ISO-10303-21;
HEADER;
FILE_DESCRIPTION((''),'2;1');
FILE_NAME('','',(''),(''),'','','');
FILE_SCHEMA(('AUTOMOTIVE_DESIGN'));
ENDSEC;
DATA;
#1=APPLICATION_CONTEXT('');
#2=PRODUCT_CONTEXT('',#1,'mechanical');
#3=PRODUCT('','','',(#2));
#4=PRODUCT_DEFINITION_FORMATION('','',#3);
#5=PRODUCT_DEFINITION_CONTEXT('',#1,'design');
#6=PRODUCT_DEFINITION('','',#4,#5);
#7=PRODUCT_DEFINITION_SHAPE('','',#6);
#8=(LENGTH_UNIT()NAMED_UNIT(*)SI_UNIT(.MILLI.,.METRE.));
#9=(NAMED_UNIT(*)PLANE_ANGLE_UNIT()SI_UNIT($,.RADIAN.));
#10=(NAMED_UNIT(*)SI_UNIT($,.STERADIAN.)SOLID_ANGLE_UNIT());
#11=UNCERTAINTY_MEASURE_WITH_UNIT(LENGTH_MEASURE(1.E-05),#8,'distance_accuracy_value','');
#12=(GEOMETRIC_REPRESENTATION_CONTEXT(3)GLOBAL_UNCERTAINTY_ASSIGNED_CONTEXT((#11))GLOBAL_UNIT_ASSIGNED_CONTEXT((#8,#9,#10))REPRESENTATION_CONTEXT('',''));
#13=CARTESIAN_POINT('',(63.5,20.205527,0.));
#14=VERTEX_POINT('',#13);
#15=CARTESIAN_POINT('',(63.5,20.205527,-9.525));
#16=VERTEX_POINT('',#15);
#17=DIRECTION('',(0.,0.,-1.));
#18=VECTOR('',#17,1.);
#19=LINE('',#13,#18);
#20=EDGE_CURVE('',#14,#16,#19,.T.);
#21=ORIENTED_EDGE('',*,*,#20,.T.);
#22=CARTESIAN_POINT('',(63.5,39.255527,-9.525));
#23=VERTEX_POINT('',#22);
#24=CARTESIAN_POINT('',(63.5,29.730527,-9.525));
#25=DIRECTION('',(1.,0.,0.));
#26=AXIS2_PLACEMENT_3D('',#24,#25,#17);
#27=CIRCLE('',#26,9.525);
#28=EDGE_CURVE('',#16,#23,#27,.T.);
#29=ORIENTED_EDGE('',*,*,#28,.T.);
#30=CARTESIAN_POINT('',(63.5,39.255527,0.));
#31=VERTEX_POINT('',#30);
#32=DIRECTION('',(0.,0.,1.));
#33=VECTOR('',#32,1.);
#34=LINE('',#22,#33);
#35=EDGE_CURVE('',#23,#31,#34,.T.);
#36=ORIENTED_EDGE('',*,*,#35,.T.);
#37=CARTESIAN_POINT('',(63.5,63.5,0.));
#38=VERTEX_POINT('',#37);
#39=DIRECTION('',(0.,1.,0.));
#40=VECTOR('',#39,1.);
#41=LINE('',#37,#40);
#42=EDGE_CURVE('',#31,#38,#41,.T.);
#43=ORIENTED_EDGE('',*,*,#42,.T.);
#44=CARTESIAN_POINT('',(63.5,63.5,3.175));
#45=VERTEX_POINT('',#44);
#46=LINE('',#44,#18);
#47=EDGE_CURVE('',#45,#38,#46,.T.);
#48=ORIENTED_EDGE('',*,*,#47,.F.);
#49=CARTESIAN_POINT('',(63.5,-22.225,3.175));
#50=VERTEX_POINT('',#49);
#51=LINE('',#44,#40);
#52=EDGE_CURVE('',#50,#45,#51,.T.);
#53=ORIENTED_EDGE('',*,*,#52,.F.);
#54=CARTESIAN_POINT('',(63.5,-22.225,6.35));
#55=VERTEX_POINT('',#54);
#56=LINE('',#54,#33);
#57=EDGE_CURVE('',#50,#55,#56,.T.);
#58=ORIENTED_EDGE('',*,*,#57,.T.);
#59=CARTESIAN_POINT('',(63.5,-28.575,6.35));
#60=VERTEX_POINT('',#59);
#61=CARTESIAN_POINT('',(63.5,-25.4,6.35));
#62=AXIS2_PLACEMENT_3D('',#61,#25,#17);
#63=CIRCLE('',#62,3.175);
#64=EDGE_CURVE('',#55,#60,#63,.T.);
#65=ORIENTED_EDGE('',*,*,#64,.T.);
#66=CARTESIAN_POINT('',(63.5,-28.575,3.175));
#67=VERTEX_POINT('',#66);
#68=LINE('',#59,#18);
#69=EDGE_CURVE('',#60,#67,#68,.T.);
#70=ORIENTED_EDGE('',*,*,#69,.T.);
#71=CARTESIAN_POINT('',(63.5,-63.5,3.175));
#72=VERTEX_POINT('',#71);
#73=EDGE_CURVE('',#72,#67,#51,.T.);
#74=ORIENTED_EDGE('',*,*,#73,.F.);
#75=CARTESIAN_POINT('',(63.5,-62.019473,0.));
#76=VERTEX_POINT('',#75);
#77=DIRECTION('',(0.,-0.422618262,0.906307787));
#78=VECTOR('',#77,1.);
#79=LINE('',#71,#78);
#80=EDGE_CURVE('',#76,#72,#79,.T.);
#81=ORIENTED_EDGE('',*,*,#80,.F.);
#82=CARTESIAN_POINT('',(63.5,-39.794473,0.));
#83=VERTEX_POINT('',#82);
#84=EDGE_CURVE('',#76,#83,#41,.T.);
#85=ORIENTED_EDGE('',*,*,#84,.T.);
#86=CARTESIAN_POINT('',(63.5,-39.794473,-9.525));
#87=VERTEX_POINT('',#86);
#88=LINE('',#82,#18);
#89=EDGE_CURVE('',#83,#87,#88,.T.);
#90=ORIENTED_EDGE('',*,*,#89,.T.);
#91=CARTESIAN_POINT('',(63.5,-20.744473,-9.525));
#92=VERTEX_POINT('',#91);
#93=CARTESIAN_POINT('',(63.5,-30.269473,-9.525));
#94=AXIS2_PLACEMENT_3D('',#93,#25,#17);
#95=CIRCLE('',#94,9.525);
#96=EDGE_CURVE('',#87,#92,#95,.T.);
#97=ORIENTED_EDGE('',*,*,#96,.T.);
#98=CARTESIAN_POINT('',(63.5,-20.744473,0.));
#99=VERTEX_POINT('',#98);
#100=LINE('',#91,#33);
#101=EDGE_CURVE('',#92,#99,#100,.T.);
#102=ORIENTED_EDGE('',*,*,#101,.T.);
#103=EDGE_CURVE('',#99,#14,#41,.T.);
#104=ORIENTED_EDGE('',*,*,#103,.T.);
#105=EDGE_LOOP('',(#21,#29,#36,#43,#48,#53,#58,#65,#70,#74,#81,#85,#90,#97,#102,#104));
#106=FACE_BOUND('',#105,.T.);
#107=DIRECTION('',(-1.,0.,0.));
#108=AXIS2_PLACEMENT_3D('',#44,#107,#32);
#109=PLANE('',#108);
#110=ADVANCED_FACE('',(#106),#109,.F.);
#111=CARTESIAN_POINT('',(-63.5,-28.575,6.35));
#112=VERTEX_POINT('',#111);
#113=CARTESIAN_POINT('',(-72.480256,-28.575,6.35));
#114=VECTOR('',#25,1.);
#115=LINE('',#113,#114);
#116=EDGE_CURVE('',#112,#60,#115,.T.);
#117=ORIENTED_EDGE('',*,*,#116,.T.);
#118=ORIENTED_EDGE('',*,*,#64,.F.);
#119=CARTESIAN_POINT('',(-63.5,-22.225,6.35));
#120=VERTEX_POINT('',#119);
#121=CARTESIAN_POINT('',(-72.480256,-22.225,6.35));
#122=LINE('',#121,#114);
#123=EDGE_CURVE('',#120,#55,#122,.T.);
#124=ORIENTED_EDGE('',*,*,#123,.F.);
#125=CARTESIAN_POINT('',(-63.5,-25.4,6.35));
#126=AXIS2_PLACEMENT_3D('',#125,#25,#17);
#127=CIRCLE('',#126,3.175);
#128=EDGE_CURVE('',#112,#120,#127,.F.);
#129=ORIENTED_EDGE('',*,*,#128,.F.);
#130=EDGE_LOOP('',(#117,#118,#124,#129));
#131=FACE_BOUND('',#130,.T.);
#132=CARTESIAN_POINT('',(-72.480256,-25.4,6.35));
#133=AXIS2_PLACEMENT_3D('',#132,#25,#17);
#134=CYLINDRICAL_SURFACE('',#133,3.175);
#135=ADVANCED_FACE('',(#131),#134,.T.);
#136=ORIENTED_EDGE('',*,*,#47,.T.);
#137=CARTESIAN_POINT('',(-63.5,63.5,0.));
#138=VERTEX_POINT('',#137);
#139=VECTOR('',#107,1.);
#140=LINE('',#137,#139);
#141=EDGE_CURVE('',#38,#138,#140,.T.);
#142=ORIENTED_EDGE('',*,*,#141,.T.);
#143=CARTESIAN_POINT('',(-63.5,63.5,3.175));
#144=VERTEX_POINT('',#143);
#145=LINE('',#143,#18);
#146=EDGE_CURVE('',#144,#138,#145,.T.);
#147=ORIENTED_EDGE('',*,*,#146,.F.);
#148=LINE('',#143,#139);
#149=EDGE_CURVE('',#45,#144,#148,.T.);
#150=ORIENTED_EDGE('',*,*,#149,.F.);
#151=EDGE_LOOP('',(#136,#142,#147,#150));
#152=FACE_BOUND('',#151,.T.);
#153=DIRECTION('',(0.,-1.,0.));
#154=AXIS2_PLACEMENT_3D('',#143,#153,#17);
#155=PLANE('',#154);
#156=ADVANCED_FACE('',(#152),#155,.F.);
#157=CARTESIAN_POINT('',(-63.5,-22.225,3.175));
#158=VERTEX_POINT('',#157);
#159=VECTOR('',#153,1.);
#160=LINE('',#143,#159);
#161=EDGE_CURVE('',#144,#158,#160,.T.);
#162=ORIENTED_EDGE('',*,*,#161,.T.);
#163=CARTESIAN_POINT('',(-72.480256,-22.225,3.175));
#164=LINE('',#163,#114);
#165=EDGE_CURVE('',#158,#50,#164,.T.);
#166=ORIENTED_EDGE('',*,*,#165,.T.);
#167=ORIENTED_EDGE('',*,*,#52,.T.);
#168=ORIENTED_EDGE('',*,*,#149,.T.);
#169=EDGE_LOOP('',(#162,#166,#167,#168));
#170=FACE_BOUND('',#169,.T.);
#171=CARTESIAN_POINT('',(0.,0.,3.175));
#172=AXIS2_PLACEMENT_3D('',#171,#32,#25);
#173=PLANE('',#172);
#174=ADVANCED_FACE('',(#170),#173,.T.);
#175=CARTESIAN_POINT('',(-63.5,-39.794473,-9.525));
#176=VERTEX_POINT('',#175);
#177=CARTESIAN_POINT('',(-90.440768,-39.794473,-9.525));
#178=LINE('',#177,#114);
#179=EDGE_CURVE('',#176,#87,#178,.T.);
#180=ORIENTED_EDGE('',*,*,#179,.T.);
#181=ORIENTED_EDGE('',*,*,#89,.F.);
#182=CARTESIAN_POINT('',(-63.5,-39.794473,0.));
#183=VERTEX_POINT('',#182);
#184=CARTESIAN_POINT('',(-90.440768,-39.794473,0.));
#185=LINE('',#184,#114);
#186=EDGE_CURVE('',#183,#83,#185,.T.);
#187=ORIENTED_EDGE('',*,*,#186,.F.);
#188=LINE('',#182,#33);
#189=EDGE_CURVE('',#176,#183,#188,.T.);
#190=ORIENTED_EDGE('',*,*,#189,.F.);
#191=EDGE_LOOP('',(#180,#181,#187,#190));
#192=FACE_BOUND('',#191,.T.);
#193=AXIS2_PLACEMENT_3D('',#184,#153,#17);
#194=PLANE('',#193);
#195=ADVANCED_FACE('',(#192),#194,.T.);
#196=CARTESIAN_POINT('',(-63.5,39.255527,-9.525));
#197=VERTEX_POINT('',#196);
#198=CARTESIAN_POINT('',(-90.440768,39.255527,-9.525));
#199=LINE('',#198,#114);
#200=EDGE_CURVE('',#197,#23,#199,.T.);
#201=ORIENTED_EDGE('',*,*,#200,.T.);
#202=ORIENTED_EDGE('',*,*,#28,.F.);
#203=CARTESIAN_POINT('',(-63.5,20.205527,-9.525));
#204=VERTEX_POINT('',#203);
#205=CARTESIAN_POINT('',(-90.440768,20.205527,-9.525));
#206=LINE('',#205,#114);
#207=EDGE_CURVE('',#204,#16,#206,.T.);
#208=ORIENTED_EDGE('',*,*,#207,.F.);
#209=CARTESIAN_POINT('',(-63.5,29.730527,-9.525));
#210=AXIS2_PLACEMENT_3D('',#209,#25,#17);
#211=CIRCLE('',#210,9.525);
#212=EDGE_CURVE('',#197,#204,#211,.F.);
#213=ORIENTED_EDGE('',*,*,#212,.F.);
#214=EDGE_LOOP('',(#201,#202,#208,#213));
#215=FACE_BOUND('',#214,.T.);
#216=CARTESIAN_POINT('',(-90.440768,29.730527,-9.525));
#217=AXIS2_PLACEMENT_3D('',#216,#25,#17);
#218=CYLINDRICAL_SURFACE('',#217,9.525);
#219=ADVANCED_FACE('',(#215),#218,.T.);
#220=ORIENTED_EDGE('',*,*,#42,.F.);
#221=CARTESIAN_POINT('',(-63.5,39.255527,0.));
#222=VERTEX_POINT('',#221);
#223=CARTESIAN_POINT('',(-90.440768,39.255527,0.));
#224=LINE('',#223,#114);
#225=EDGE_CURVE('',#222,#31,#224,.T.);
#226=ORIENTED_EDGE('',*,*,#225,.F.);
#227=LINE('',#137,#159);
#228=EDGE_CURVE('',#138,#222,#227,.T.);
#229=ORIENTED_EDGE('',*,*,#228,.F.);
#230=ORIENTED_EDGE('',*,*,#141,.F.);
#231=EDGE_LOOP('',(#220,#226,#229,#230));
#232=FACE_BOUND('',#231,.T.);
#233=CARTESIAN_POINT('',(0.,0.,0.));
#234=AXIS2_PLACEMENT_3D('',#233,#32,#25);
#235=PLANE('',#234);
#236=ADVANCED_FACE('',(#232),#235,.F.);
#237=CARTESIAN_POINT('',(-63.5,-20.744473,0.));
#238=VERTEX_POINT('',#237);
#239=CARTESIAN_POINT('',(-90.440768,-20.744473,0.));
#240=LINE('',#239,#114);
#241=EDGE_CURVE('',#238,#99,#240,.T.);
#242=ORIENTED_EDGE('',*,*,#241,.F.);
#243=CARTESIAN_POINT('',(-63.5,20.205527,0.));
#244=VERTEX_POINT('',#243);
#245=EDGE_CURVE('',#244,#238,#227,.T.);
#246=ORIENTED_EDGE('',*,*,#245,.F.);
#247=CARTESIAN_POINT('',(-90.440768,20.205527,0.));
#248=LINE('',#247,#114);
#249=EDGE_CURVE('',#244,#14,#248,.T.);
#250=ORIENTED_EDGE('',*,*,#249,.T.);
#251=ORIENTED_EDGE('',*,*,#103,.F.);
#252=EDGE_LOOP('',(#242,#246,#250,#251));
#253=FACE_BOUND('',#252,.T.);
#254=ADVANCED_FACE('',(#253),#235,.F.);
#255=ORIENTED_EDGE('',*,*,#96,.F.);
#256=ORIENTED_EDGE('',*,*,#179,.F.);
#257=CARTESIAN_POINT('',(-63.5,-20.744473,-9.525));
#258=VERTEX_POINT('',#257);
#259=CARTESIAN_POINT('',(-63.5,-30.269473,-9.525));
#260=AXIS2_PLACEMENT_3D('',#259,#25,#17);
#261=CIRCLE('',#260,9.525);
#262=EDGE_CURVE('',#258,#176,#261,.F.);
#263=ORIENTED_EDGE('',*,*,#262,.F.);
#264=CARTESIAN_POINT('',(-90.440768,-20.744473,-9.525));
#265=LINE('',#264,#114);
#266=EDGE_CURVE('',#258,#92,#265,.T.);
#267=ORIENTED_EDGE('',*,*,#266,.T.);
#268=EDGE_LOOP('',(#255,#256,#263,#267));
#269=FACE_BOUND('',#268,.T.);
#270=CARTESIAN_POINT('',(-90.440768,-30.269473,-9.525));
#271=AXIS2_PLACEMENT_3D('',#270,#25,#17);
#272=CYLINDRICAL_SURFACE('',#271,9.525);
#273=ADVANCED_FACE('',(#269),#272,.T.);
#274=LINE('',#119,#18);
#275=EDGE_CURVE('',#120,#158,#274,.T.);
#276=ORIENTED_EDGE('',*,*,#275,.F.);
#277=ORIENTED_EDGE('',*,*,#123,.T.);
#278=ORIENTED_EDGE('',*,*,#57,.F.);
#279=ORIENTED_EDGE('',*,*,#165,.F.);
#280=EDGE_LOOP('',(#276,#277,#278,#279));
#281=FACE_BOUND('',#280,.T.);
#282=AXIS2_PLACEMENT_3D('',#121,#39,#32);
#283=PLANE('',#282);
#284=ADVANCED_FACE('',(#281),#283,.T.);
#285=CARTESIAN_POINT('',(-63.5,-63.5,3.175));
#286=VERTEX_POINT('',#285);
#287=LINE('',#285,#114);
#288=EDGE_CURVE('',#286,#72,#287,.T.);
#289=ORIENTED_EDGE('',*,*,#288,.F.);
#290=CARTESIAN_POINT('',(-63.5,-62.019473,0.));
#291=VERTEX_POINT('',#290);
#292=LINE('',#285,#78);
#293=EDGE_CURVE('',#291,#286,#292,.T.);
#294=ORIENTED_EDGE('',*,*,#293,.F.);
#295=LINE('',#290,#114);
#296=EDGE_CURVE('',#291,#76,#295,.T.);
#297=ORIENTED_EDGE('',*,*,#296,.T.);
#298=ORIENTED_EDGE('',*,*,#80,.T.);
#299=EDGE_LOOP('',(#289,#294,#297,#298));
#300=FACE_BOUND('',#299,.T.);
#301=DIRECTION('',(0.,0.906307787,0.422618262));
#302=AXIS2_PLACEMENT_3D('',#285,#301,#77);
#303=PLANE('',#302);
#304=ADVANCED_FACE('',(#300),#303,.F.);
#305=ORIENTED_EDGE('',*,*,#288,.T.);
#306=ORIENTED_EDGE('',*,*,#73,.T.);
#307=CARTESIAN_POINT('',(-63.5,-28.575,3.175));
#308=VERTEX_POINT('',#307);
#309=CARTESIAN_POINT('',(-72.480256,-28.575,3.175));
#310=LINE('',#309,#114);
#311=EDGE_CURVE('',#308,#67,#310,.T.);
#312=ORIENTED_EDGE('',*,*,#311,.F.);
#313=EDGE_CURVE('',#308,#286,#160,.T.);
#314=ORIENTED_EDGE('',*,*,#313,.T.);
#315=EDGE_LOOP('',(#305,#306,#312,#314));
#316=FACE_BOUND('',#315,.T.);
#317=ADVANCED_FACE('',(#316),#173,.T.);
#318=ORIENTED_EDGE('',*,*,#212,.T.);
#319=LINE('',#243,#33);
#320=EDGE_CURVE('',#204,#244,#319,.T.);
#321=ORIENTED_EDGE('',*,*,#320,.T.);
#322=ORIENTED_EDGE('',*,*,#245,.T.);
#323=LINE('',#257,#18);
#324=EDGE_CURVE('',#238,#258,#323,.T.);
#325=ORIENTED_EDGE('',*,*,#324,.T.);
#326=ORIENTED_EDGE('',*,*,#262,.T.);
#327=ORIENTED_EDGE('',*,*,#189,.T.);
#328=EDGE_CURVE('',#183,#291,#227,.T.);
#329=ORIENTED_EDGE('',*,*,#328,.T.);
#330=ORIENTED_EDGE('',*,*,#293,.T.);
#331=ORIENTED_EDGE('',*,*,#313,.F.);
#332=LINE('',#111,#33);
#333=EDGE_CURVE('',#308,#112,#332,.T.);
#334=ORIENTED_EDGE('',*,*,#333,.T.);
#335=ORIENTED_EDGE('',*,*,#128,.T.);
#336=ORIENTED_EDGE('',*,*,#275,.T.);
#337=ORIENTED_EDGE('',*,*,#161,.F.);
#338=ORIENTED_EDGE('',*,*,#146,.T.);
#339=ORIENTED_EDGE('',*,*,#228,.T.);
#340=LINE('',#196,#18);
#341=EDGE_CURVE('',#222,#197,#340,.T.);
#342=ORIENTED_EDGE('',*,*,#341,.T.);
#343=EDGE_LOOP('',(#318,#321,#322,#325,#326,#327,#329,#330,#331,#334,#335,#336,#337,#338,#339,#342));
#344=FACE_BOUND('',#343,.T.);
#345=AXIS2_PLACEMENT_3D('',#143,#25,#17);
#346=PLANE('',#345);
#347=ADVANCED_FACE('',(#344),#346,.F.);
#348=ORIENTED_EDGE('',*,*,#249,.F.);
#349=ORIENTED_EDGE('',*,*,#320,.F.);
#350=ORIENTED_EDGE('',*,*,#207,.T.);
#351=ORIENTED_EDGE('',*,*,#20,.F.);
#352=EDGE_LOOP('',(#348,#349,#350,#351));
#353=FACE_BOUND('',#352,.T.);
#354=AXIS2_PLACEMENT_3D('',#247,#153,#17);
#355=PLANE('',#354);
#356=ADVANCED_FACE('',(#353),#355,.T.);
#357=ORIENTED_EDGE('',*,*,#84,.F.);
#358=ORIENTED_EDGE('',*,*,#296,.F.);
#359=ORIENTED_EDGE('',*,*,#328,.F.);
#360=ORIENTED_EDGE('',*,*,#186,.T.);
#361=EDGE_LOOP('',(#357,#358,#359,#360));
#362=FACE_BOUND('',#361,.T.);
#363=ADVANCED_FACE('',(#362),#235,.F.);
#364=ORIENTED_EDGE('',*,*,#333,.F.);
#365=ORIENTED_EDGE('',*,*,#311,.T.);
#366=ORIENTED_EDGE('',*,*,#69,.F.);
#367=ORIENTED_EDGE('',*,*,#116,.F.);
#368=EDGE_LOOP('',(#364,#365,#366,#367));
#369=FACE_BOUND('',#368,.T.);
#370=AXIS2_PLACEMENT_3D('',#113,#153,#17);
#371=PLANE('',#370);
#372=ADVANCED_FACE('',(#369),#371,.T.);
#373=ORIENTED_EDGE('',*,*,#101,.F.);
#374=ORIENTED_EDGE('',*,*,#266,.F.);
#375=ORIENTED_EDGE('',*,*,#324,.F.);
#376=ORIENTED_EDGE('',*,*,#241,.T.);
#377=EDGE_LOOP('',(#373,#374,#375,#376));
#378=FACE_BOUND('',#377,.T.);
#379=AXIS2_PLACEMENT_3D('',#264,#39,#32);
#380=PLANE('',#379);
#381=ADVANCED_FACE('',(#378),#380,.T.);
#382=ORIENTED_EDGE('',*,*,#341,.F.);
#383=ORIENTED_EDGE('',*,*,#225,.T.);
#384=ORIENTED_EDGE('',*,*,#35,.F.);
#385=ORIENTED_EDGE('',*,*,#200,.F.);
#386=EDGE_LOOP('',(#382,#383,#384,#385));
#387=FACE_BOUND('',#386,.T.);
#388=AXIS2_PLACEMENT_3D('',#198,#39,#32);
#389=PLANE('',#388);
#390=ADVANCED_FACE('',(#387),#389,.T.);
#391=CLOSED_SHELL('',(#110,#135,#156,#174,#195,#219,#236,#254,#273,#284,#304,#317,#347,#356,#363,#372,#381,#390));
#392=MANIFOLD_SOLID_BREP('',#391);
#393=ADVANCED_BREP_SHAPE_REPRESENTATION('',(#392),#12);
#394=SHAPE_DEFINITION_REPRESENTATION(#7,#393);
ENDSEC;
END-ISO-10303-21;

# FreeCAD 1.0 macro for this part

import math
import FreeCAD as App
import Part
import Sketcher

V = App.Vector
Q = App.Units.Quantity


def add_polygon(sketch, points):
    """Adds a closed chain of lines whose ends are joined by coincident constraints."""
    first, n = sketch.GeometryCount, len(points)
    for a, b in zip(points, points[1:] + points[:1]):
        sketch.addGeometry(Part.LineSegment(App.Vector(*a, 0), App.Vector(*b, 0)), False)
    for i in range(n):
        sketch.addConstraint(Sketcher.Constraint("Coincident", first + i, 2, first + (i + 1) % n, 1))

doc = App.newDocument("Part")
body = doc.addObject("PartDesign::Body", "Body")

sketch1 = body.newObject("Sketcher::SketchObject", "Sketch")
sketch1.AttachmentSupport = (doc.getObject("XY_Plane"), [""])
sketch1.MapMode = "FlatFace"
add_polygon(sketch1, [(-64, 64), (-64, -64), (64, -64), (64, 64)])
sketch1.addConstraint(Sketcher.Constraint("Vertical", 0))
sketch1.addConstraint(Sketcher.Constraint("Horizontal", 1))
sketch1.addConstraint(Sketcher.Constraint("Vertical", 2))
sketch1.addConstraint(Sketcher.Constraint("Horizontal", 3))
sketch1.addConstraint(Sketcher.Constraint("Symmetric", 0, 2, 2, 2, -1, 1))
sketch1.addConstraint(Sketcher.Constraint("Equal", 3, 0))
sketch1.addConstraint(Sketcher.Constraint("DistanceX", 1, 1, 1, 2, Q("5 in")))
pad1 = body.newObject("PartDesign::Pad", "Pad")
pad1.Profile = sketch1
pad1.Length = Q("0.125 in")

sketch2 = body.newObject("Sketcher::SketchObject", "Sketch001")
sketch2.AttachmentSupport = (doc.getObject("YZ_Plane"), [""])
sketch2.MapMode = "FlatFace"
sketch2.AttachmentOffset = App.Placement(V(0, 0, 2.5 * 25.4), App.Rotation())
add_polygon(sketch2, [(-62, 0), (-63.5, 3.2), (-63.5, 0)])
sketch2.addConstraint(Sketcher.Constraint("Vertical", 1))
sketch2.addConstraint(Sketcher.Constraint("Horizontal", 2))
sketch2.addConstraint(Sketcher.Constraint("PointOnObject", 1, 2, -1))
sketch2.addConstraint(Sketcher.Constraint("Angle", 0, Q("115 deg")))
sketch2.addConstraint(Sketcher.Constraint("DistanceX", 0, 2, -1, 1, Q("2.5 in")))
sketch2.addConstraint(Sketcher.Constraint("DistanceY", 1, 2, 1, 1, Q("0.125 in")))
pocket1 = body.newObject("PartDesign::Pocket", "Pocket")
pocket1.Profile = sketch2
pocket1.Type = "ThroughAll"

sketch3 = body.newObject("Sketcher::SketchObject", "Sketch002")
sketch3.AttachmentSupport = (doc.getObject("YZ_Plane"), [""])
sketch3.MapMode = "FlatFace"
sketch3.AttachmentOffset = App.Placement(V(0, 0, 2.5 * 25.4), App.Rotation())
sketch3.addGeometry(Part.LineSegment(V(39, -10, 0), V(39, 0, 0)), False)
sketch3.addGeometry(Part.LineSegment(V(39, 0, 0), V(20, 0, 0)), False)
sketch3.addGeometry(Part.LineSegment(V(20, 0, 0), V(20, -10, 0)), False)
sketch3.addGeometry(Part.ArcOfCircle(Part.Circle(V(30, -10, 0), V(0, 0, 1), 10), math.radians(180), math.radians(360)), False)
sketch3.addGeometry(Part.LineSegment(V(-21, -10, 0), V(-21, 0, 0)), False)
sketch3.addGeometry(Part.LineSegment(V(-21, 0, 0), V(-40, 0, 0)), False)
sketch3.addGeometry(Part.LineSegment(V(-40, 0, 0), V(-40, -10, 0)), False)
sketch3.addGeometry(Part.ArcOfCircle(Part.Circle(V(-30, -10, 0), V(0, 0, 1), 10), math.radians(180), math.radians(360)), False)
sketch3.addConstraint(Sketcher.Constraint("Coincident", 0, 2, 1, 1))
sketch3.addConstraint(Sketcher.Constraint("Coincident", 1, 2, 2, 1))
sketch3.addConstraint(Sketcher.Constraint("Tangent", 2, 2, 3, 1))
sketch3.addConstraint(Sketcher.Constraint("Tangent", 3, 2, 0, 1))
sketch3.addConstraint(Sketcher.Constraint("Coincident", 4, 2, 5, 1))
sketch3.addConstraint(Sketcher.Constraint("Coincident", 5, 2, 6, 1))
sketch3.addConstraint(Sketcher.Constraint("Tangent", 6, 2, 7, 1))
sketch3.addConstraint(Sketcher.Constraint("Tangent", 7, 2, 4, 1))
sketch3.addConstraint(Sketcher.Constraint("Vertical", 0))
sketch3.addConstraint(Sketcher.Constraint("Horizontal", 1))
sketch3.addConstraint(Sketcher.Constraint("Vertical", 2))
sketch3.addConstraint(Sketcher.Constraint("Vertical", 4))
sketch3.addConstraint(Sketcher.Constraint("Horizontal", 5))
sketch3.addConstraint(Sketcher.Constraint("Vertical", 6))
sketch3.addConstraint(Sketcher.Constraint("Equal", 3, 7))
sketch3.addConstraint(Sketcher.Constraint("PointOnObject", 0, 2, -1))
sketch3.addConstraint(Sketcher.Constraint("PointOnObject", 4, 2, -1))
sketch3.addConstraint(Sketcher.Constraint("Horizontal", 3, 3, 7, 3))
sketch3.addConstraint(Sketcher.Constraint("Radius", 3, Q("0.375 in")))
sketch3.addConstraint(Sketcher.Constraint("DistanceY", 0, 1, 0, 2, Q("0.375 in")))
sketch3.addConstraint(Sketcher.Constraint("DistanceX", 7, 3, 3, 3, Q("60 mm")))
sketch3.addConstraint(Sketcher.Constraint("DistanceX", -1, 1, 3, 3, Q("29.730527 mm")))
pad2 = body.newObject("PartDesign::Pad", "Pad001")
pad2.Profile = sketch3
pad2.Length = Q("5 in")
pad2.Reversed = True

sketch4 = body.newObject("Sketcher::SketchObject", "Sketch003")
sketch4.AttachmentSupport = (doc.getObject("YZ_Plane"), [""])
sketch4.MapMode = "FlatFace"
sketch4.AttachmentOffset = App.Placement(V(0, 0, 2.5 * 25.4), App.Rotation())
sketch4.addGeometry(Part.LineSegment(V(-22.2, 3.2, 0), V(-22.2, 6.3, 0)), False)
sketch4.addGeometry(Part.ArcOfCircle(Part.Circle(V(-25.4, 6.3, 0), V(0, 0, 1), 3.2), math.radians(0), math.radians(180)), False)
sketch4.addGeometry(Part.LineSegment(V(-28.6, 6.3, 0), V(-28.6, 3.2, 0)), False)
sketch4.addGeometry(Part.LineSegment(V(-28.6, 3.2, 0), V(-22.2, 3.2, 0)), False)
sketch4.addConstraint(Sketcher.Constraint("Tangent", 0, 2, 1, 1))
sketch4.addConstraint(Sketcher.Constraint("Tangent", 1, 2, 2, 1))
sketch4.addConstraint(Sketcher.Constraint("Coincident", 2, 2, 3, 1))
sketch4.addConstraint(Sketcher.Constraint("Coincident", 3, 2, 0, 1))
sketch4.addConstraint(Sketcher.Constraint("Vertical", 0))
sketch4.addConstraint(Sketcher.Constraint("Vertical", 2))
sketch4.addConstraint(Sketcher.Constraint("Horizontal", 3))
sketch4.addConstraint(Sketcher.Constraint("DistanceX", 1, 3, -1, 1, Q("1 in")))
sketch4.addConstraint(Sketcher.Constraint("Radius", 1, Q("0.125 in")))
sketch4.addConstraint(Sketcher.Constraint("DistanceY", 0, 1, 0, 2, Q("0.125 in")))
sketch4.addConstraint(Sketcher.Constraint("DistanceY", -1, 1, 1, 3, Q("0.25 in")))
pad3 = body.newObject("PartDesign::Pad", "Pad002")
pad3.Profile = sketch4
pad3.Length = Q("5 in")
pad3.Reversed = True

doc.recompute()
